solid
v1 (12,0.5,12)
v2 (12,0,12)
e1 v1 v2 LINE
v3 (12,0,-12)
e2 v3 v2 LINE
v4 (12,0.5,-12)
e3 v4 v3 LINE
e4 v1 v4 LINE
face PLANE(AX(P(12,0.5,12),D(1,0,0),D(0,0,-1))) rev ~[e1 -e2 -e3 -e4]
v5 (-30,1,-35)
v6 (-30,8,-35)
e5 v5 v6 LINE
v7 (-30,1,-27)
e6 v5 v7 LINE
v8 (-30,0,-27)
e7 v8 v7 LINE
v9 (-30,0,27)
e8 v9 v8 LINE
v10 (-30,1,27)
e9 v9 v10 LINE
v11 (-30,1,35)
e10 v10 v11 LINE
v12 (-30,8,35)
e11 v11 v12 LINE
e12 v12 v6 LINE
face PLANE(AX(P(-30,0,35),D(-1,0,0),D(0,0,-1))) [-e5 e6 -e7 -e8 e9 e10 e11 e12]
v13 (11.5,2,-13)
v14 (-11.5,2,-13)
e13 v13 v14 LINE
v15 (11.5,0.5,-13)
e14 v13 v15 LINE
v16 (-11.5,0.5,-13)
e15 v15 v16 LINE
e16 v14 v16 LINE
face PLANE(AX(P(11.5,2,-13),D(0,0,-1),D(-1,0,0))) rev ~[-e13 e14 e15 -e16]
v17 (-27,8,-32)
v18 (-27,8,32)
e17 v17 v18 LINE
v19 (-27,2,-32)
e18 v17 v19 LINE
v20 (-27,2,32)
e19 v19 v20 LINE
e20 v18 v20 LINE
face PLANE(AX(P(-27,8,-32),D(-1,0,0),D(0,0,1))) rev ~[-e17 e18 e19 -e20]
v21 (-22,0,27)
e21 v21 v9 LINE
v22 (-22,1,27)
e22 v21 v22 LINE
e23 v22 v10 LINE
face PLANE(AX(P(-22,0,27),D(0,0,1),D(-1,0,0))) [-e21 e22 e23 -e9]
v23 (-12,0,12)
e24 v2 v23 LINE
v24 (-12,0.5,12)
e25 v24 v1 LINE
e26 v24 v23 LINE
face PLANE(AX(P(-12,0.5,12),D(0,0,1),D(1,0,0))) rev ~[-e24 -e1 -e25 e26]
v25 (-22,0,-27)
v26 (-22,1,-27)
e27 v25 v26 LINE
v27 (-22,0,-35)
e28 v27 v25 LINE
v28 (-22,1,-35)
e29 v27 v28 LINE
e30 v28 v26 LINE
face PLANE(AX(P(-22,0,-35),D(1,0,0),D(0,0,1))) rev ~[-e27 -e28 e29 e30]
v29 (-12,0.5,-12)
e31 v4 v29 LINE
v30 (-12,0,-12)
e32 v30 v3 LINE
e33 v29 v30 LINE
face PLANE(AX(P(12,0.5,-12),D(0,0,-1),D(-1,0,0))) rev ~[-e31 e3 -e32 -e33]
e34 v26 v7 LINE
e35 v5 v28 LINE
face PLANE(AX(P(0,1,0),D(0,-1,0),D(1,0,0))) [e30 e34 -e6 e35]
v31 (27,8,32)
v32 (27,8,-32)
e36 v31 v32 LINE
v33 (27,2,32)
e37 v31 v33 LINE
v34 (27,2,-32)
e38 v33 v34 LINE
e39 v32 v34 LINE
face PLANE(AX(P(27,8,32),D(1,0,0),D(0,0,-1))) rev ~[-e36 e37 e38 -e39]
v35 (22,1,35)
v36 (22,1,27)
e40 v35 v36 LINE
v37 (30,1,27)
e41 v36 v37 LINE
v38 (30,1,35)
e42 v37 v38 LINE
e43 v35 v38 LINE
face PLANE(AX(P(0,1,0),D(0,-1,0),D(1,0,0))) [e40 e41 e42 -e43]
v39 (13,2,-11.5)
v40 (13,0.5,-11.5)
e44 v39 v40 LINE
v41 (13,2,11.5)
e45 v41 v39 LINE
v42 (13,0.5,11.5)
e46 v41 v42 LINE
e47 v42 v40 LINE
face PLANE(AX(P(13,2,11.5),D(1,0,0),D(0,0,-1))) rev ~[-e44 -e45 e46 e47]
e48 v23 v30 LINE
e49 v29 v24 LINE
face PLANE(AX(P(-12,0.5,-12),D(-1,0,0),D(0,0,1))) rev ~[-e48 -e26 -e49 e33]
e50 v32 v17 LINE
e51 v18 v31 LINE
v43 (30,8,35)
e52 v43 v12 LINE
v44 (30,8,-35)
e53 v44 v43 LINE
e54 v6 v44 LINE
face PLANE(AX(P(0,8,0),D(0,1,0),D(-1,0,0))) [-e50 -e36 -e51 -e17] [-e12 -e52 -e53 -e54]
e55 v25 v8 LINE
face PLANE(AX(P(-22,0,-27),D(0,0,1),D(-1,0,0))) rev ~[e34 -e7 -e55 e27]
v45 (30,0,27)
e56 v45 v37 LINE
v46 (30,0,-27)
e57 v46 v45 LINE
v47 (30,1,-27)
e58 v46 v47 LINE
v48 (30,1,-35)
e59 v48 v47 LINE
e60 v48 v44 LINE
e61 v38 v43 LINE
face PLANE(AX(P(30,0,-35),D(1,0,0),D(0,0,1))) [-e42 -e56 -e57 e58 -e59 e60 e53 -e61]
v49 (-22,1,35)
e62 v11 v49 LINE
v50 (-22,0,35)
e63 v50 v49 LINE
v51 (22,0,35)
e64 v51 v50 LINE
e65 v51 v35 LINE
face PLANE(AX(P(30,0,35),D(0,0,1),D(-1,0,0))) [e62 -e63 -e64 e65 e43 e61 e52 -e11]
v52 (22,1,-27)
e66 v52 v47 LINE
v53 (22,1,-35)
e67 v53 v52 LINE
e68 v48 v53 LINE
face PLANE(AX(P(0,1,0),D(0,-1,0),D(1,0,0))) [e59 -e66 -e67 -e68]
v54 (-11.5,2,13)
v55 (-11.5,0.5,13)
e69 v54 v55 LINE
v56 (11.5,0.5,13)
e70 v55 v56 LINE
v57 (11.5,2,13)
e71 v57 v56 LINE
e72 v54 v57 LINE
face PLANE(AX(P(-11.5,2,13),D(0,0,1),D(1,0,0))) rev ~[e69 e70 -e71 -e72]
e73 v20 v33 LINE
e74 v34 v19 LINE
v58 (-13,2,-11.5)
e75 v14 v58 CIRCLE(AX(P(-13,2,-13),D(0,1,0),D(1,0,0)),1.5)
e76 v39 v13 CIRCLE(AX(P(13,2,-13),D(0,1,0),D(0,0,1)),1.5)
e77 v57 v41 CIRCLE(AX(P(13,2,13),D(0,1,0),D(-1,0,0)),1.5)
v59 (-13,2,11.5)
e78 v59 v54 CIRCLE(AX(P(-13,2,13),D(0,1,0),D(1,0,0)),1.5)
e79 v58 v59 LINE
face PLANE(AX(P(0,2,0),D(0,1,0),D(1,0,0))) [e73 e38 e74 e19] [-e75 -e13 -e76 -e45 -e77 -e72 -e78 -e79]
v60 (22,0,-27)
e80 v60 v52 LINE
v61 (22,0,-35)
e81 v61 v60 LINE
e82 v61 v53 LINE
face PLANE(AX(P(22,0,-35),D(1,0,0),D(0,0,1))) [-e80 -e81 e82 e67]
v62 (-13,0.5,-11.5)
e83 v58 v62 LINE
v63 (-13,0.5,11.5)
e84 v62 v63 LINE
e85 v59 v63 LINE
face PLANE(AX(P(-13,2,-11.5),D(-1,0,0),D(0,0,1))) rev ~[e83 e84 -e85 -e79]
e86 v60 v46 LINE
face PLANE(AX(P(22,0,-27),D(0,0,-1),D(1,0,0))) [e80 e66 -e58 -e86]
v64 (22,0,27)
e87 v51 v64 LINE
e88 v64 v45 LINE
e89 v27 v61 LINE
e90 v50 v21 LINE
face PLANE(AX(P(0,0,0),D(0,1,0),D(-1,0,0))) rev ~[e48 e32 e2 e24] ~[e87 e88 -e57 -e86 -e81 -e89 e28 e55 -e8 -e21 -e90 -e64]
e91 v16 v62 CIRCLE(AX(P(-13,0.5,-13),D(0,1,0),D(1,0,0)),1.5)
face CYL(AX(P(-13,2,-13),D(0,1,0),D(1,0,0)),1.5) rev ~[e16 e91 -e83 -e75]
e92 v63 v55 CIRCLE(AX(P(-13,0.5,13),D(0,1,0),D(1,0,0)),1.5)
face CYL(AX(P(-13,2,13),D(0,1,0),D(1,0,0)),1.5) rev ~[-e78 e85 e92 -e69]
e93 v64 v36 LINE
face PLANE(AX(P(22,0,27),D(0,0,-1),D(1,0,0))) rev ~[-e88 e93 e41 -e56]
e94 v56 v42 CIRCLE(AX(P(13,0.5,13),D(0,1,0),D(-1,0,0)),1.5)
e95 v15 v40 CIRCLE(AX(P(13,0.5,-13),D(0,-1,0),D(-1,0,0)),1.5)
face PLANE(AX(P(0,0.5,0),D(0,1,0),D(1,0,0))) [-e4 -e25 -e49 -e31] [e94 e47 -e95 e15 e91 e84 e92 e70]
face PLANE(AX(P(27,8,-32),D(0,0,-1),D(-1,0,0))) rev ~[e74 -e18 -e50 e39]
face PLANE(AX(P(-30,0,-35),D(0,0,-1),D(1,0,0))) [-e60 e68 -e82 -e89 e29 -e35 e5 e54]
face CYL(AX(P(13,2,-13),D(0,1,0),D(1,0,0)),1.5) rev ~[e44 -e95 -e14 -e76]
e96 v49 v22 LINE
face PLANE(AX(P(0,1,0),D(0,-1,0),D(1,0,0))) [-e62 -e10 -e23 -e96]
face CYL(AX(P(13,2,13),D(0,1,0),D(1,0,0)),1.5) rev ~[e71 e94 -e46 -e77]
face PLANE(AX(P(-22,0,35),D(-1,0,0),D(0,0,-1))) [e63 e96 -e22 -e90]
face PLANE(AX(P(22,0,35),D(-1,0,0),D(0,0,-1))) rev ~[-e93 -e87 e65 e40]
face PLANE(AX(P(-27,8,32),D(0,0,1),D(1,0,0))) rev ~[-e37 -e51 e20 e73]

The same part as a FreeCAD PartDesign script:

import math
import FreeCAD as App
import Part
import Sketcher
from FreeCAD import Vector
Q = App.Units.Quantity


def add_polygon(sketch, points):
    """Adds a closed chain of lines whose ends are joined by coincident constraints."""
    first, n = sketch.GeometryCount, len(points)
    for a, b in zip(points, points[1:] + points[:1]):
        sketch.addGeometry(Part.LineSegment(App.Vector(*a, 0), App.Vector(*b, 0)), False)
    for i in range(n):
        sketch.addConstraint(Sketcher.Constraint("Coincident", first + i, 2, first + (i + 1) % n, 1))

doc = App.newDocument("Part")
body = doc.addObject("PartDesign::Body", "Body")

sketch1 = body.newObject("Sketcher::SketchObject", "Sketch")
sketch1.AttachmentSupport = (doc.getObject("XZ_Plane"), [""])
sketch1.MapMode = "FlatFace"
add_polygon(sketch1, [(-30, 35), (30, 35), (30, -35), (-30, -35)])
sketch1.addConstraint([
    Sketcher.Constraint("Horizontal", 0),
    Sketcher.Constraint("Vertical", 1),
    Sketcher.Constraint("Horizontal", 2),
    Sketcher.Constraint("Vertical", 3),
    Sketcher.Constraint("Symmetric", 0, 2, 2, 2, -1, 1),
    Sketcher.Constraint("DistanceX", 0, 1, 0, 2, Q("60 mm")),
    Sketcher.Constraint("DistanceY", 1, 2, 1, 1, Q("70 mm")),
])
pad1 = body.newObject("PartDesign::Pad", "Pad")
pad1.Profile = sketch1
pad1.Length = 8
pad1.Reversed = True

sketch2 = body.newObject("Sketcher::SketchObject", "Sketch001")
sketch2.AttachmentSupport = (doc.getObject("XZ_Plane"), [""])
sketch2.MapMode = "FlatFace"
sketch2.AttachmentOffset = App.Placement(Vector(0, 0, -8), App.Rotation())
add_polygon(sketch2, [(-27, 32), (27, 32), (27, -32), (-27, -32)])
sketch2.addConstraint([
    Sketcher.Constraint("Horizontal", 0),
    Sketcher.Constraint("Vertical", 1),
    Sketcher.Constraint("Horizontal", 2),
    Sketcher.Constraint("Vertical", 3),
    Sketcher.Constraint("Symmetric", 0, 2, 2, 2, -1, 1),
    Sketcher.Constraint("DistanceX", 0, 1, 0, 2, Q("54 mm")),
    Sketcher.Constraint("DistanceY", 1, 2, 1, 1, Q("64 mm")),
])
pocket1 = body.newObject("PartDesign::Pocket", "Pocket")
pocket1.Profile = sketch2
pocket1.Length = 6
pocket1.Reversed = True

sketch3 = body.newObject("Sketcher::SketchObject", "Sketch002")
sketch3.AttachmentSupport = (doc.getObject("XZ_Plane"), [""])
sketch3.MapMode = "FlatFace"
sketch3.AttachmentOffset = App.Placement(Vector(0, 0, -2), App.Rotation())
sketch3.addGeometry([
    Part.LineSegment(Vector(-13, -11.5, 0), Vector(-13, 11.5, 0)),
    Part.ArcOfCircle(Part.Circle(Vector(-13, 13, 0), Vector(0, 0, 1), 1.5), math.radians(0), math.radians(270)),
    Part.LineSegment(Vector(-11.5, 13, 0), Vector(11.5, 13, 0)),
    Part.ArcOfCircle(Part.Circle(Vector(13, 13, 0), Vector(0, 0, 1), 1.5), math.radians(-90), math.radians(180)),
    Part.LineSegment(Vector(13, 11.5, 0), Vector(13, -11.5, 0)),
    Part.ArcOfCircle(Part.Circle(Vector(13, -13, 0), Vector(0, 0, 1), 1.5), math.radians(180), math.radians(450)),
    Part.LineSegment(Vector(11.5, -13, 0), Vector(-11.5, -13, 0)),
    Part.ArcOfCircle(Part.Circle(Vector(-13, -13, 0), Vector(0, 0, 1), 1.5), math.radians(90), math.radians(360)),
], False)
sketch3.addConstraint([
    Sketcher.Constraint("Coincident", 0, 2, 1, 2),
    Sketcher.Constraint("Coincident", 1, 1, 2, 1),
    Sketcher.Constraint("Coincident", 2, 2, 3, 2),
    Sketcher.Constraint("Coincident", 3, 1, 4, 1),
    Sketcher.Constraint("Coincident", 4, 2, 5, 2),
    Sketcher.Constraint("Coincident", 5, 1, 6, 1),
    Sketcher.Constraint("Coincident", 6, 2, 7, 2),
    Sketcher.Constraint("Coincident", 7, 1, 0, 1),
    Sketcher.Constraint("Vertical", 0),
    Sketcher.Constraint("Horizontal", 2),
    Sketcher.Constraint("Vertical", 4),
    Sketcher.Constraint("Horizontal", 6),
    Sketcher.Constraint("Equal", 1, 3),
    Sketcher.Constraint("Equal", 3, 5),
    Sketcher.Constraint("Equal", 5, 7),
    Sketcher.Constraint("Symmetric", 1, 3, 5, 3, -1, 1),
    Sketcher.Constraint("Symmetric", 3, 3, 7, 3, -1, 1),
    Sketcher.Constraint("Symmetric", 1, 3, 3, 3, -2),
    Sketcher.Constraint("Horizontal", 3, 3, 1, 1),
    Sketcher.Constraint("Horizontal", 7, 3, 5, 1),
    Sketcher.Constraint("Vertical", 7, 3, 0, 2),
    Sketcher.Constraint("Vertical", 5, 3, 3, 1),
    Sketcher.Constraint("Equal", 6, 0),
    Sketcher.Constraint("Radius", 1, Q("1.5 mm")),
    Sketcher.Constraint("DistanceX", 1, 3, 3, 3, Q("26 mm")),
])
pocket2 = body.newObject("PartDesign::Pocket", "Pocket001")
pocket2.Profile = sketch3
pocket2.Length = 1.5
pocket2.Reversed = True

sketch4 = body.newObject("Sketcher::SketchObject", "Sketch003")
sketch4.AttachmentSupport = (doc.getObject("XZ_Plane"), [""])
sketch4.MapMode = "FlatFace"
sketch4.AttachmentOffset = App.Placement(Vector(0, 0, -0.5), App.Rotation())
add_polygon(sketch4, [(-12, -12), (-12, 12), (12, 12), (12, -12)])
sketch4.addConstraint([
    Sketcher.Constraint("Vertical", 0),
    Sketcher.Constraint("Horizontal", 1),
    Sketcher.Constraint("Vertical", 2),
    Sketcher.Constraint("Horizontal", 3),
    Sketcher.Constraint("Symmetric", 0, 2, 2, 2, -1, 1),
    Sketcher.Constraint("Equal", 3, 0),
    Sketcher.Constraint("DistanceX", 1, 1, 1, 2, Q("24 mm")),
])
pocket3 = body.newObject("PartDesign::Pocket", "Pocket002")
pocket3.Profile = sketch4
pocket3.Type = "UpToFirst"
pocket3.Reversed = True

sketch5 = body.newObject("Sketcher::SketchObject", "Sketch004")
sketch5.AttachmentSupport = (doc.getObject("XZ_Plane"), [""])
sketch5.MapMode = "FlatFace"
add_polygon(sketch5, [(30, -35), (30, -27), (22, -27), (22, -35)])
add_polygon(sketch5, [(30, 35), (22, 35), (22, 27), (30, 27)])
add_polygon(sketch5, [(-30, 35), (-30, 27), (-22, 27), (-22, 35)])
add_polygon(sketch5, [(-30, -27), (-30, -35), (-22, -35), (-22, -27)])
sketch5.addConstraint([
    Sketcher.Constraint("Vertical", 0),
    Sketcher.Constraint("Horizontal", 1),
    Sketcher.Constraint("Vertical", 2),
    Sketcher.Constraint("Horizontal", 3),
    Sketcher.Constraint("Horizontal", 4),
    Sketcher.Constraint("Vertical", 5),
    Sketcher.Constraint("Horizontal", 6),
    Sketcher.Constraint("Vertical", 7),
    Sketcher.Constraint("Vertical", 8),
    Sketcher.Constraint("Horizontal", 9),
    Sketcher.Constraint("Vertical", 10),
    Sketcher.Constraint("Horizontal", 11),
    Sketcher.Constraint("Vertical", 12),
    Sketcher.Constraint("Horizontal", 13),
    Sketcher.Constraint("Vertical", 14),
    Sketcher.Constraint("Horizontal", 15),
    Sketcher.Constraint("Symmetric", 0, 2, 8, 2, -1, 1),
    Sketcher.Constraint("Symmetric", 2, 2, 10, 2, -1, 1),
    Sketcher.Constraint("Symmetric", 7, 2, 12, 2, -1, 1),
    Sketcher.Constraint("Symmetric", 5, 2, 14, 2, -1, 1),
    Sketcher.Constraint("Symmetric", 6, 2, 8, 2, -2),
    Sketcher.Constraint("Symmetric", 4, 2, 10, 2, -2),
    Sketcher.Constraint("Equal", 15, 0),
    Sketcher.Constraint("DistanceX", 1, 2, 1, 1, Q("8 mm")),
    Sketcher.Constraint("DistanceX", -1, 1, 0, 2, Q("30 mm")),
    Sketcher.Constraint("DistanceY", 0, 2, -1, 1, Q("27 mm")),
])
pocket4 = body.newObject("PartDesign::Pocket", "Pocket003")
pocket4.Profile = sketch5
pocket4.Length = 1

doc.recompute()
